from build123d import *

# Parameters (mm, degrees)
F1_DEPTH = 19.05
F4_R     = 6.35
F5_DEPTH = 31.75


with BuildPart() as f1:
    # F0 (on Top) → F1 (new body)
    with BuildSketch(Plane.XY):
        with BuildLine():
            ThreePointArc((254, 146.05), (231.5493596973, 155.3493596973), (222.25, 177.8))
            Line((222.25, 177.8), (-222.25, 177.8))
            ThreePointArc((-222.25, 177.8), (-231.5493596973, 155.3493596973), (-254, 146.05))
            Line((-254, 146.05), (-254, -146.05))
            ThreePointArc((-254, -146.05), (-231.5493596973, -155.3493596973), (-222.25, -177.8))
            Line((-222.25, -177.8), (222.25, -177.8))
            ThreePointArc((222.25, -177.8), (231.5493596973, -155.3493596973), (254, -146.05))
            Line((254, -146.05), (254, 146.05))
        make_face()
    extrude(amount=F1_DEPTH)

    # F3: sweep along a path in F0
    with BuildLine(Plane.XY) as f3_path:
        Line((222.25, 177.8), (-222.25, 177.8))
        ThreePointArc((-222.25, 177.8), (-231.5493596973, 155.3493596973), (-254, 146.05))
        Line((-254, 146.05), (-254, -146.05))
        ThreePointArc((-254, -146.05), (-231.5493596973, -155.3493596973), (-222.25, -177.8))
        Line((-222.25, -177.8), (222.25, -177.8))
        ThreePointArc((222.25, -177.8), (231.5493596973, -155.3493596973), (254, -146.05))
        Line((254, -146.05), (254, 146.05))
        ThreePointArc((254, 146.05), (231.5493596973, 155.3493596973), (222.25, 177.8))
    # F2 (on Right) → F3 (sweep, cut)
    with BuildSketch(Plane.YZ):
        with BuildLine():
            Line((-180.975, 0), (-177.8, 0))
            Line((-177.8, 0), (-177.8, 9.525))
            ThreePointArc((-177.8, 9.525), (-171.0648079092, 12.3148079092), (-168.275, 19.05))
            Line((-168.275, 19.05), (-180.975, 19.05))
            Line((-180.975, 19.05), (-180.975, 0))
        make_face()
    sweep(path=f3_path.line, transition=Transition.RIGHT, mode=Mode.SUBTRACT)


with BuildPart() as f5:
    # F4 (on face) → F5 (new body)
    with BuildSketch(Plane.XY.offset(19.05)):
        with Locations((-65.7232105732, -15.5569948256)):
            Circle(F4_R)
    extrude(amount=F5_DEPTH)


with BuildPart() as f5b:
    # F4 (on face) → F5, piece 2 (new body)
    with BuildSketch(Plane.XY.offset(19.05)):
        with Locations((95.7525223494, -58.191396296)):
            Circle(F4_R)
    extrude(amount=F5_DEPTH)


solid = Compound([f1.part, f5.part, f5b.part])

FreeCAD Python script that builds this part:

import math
import FreeCAD as App
import Part
import Sketcher
Q = App.Units.Quantity

doc = App.newDocument("Part")
body = doc.addObject("PartDesign::Body", "Body")

sketch1 = body.newObject("Sketcher::SketchObject", "Sketch")
sketch1.AttachmentSupport = (doc.getObject("XY_Plane"), [""])
sketch1.MapMode = "FlatFace"
sketch1.addGeometry([
    Part.ArcOfCircle(Part.Circle(App.Vector(254, 178, 0), App.Vector(0, 0, 1), 32), math.radians(180), math.radians(270)),
    Part.LineSegment(App.Vector(222, 178, 0), App.Vector(-222, 178, 0)),
    Part.ArcOfCircle(Part.Circle(App.Vector(-254, 178, 0), App.Vector(0, 0, 1), 32), math.radians(-90), math.radians(0)),
    Part.LineSegment(App.Vector(-254, 146, 0), App.Vector(-254, -146, 0)),
    Part.ArcOfCircle(Part.Circle(App.Vector(-254, -178, 0), App.Vector(0, 0, 1), 32), math.radians(0), math.radians(90)),
    Part.LineSegment(App.Vector(-222, -178, 0), App.Vector(222, -178, 0)),
    Part.ArcOfCircle(Part.Circle(App.Vector(254, -178, 0), App.Vector(0, 0, 1), 32), math.radians(90), math.radians(180)),
    Part.LineSegment(App.Vector(254, -146, 0), App.Vector(254, 146, 0)),
], False)
sketch1.addConstraint([
    Sketcher.Constraint("Coincident", 0, 1, 1, 1),
    Sketcher.Constraint("Coincident", 1, 2, 2, 2),
    Sketcher.Constraint("Coincident", 2, 1, 3, 1),
    Sketcher.Constraint("Coincident", 3, 2, 4, 2),
    Sketcher.Constraint("Coincident", 4, 1, 5, 1),
    Sketcher.Constraint("Coincident", 5, 2, 6, 2),
    Sketcher.Constraint("Coincident", 6, 1, 7, 1),
    Sketcher.Constraint("Coincident", 7, 2, 0, 2),
    Sketcher.Constraint("Horizontal", 1),
    Sketcher.Constraint("Vertical", 3),
    Sketcher.Constraint("Horizontal", 5),
    Sketcher.Constraint("Vertical", 7),
    Sketcher.Constraint("Equal", 0, 2),
    Sketcher.Constraint("Equal", 2, 4),
    Sketcher.Constraint("Equal", 4, 6),
    Sketcher.Constraint("Symmetric", 0, 3, 4, 3, -1, 1),
    Sketcher.Constraint("Symmetric", 2, 3, 6, 3, -1, 1),
    Sketcher.Constraint("Symmetric", 0, 3, 2, 3, -2),
    Sketcher.Constraint("Horizontal", 2, 3, 0, 1),
    Sketcher.Constraint("Horizontal", 6, 3, 4, 1),
    Sketcher.Constraint("Vertical", 4, 3, 2, 1),
    Sketcher.Constraint("Vertical", 0, 3, 6, 1),
    Sketcher.Constraint("Radius", 0, Q("1.25 in")),
    Sketcher.Constraint("DistanceX", 1, 2, 1, 1, Q("17.5 in")),
    Sketcher.Constraint("DistanceY", 3, 2, 3, 1, Q("11.5 in")),
])
pad1 = body.newObject("PartDesign::Pad", "Pad")
pad1.Profile = sketch1
pad1.Length = Q("0.75 in")

sketch2 = body.newObject("Sketcher::SketchObject", "Sketch001")
sketch2.AttachmentSupport = (doc.getObject("YZ_Plane"), [""])
sketch2.MapMode = "FlatFace"
sketch2.addGeometry([
    Part.LineSegment(App.Vector(-181, 0, 0), App.Vector(-177.8, 0, 0)),
    Part.LineSegment(App.Vector(-177.8, 0, 0), App.Vector(-177.8, 9.5, 0)),
    Part.ArcOfCircle(Part.Circle(App.Vector(-177.8, 19.1, 0), App.Vector(0, 0, 1), 9.5), math.radians(-90), math.radians(0)),
    Part.LineSegment(App.Vector(-168.3, 19.1, 0), App.Vector(-181, 19.1, 0)),
    Part.LineSegment(App.Vector(-181, 19.1, 0), App.Vector(-181, 0, 0)),
], False)
sketch2.addConstraint([
    Sketcher.Constraint("Coincident", 0, 2, 1, 1),
    Sketcher.Constraint("Coincident", 1, 2, 2, 1),
    Sketcher.Constraint("Coincident", 2, 2, 3, 1),
    Sketcher.Constraint("Coincident", 3, 2, 4, 1),
    Sketcher.Constraint("Coincident", 4, 2, 0, 1),
    Sketcher.Constraint("Horizontal", 0),
    Sketcher.Constraint("Vertical", 1),
    Sketcher.Constraint("Horizontal", 3),
    Sketcher.Constraint("Vertical", 4),
    Sketcher.Constraint("PointOnObject", 0, 2, -1),
    Sketcher.Constraint("Vertical", 2, 3, 0, 2),
    Sketcher.Constraint("DistanceX", 3, 2, 3, 1, Q("0.5 in")),
    Sketcher.Constraint("DistanceX", 2, 3, -1, 1, Q("7 in")),
    Sketcher.Constraint("Radius", 2, Q("0.375 in")),
    Sketcher.Constraint("DistanceY", 4, 2, 4, 1, Q("0.75 in")),
    Sketcher.Constraint("DistanceY", 1, 1, 1, 2, Q("0.375 in")),
])

sketch3 = body.newObject("Sketcher::SketchObject", "Sketch002")
sketch3.AttachmentSupport = (doc.getObject("XY_Plane"), [""])
sketch3.MapMode = "FlatFace"
sketch3.addGeometry([
    Part.LineSegment(App.Vector(222, 178, 0), App.Vector(-222, 178, 0)),
    Part.ArcOfCircle(Part.Circle(App.Vector(-254, 178, 0), App.Vector(0, 0, 1), 32), math.radians(-90), math.radians(0)),
    Part.LineSegment(App.Vector(-254, 146, 0), App.Vector(-254, -146, 0)),
    Part.ArcOfCircle(Part.Circle(App.Vector(-254, -178, 0), App.Vector(0, 0, 1), 32), math.radians(0), math.radians(90)),
    Part.LineSegment(App.Vector(-222, -178, 0), App.Vector(222, -178, 0)),
    Part.ArcOfCircle(Part.Circle(App.Vector(254, -178, 0), App.Vector(0, 0, 1), 32), math.radians(90), math.radians(180)),
    Part.LineSegment(App.Vector(254, -146, 0), App.Vector(254, 146, 0)),
    Part.ArcOfCircle(Part.Circle(App.Vector(254, 178, 0), App.Vector(0, 0, 1), 32), math.radians(180), math.radians(270)),
], False)
sketch3.addConstraint([
    Sketcher.Constraint("Coincident", 0, 2, 1, 2),
    Sketcher.Constraint("Coincident", 1, 1, 2, 1),
    Sketcher.Constraint("Coincident", 2, 2, 3, 2),
    Sketcher.Constraint("Coincident", 3, 1, 4, 1),
    Sketcher.Constraint("Coincident", 4, 2, 5, 2),
    Sketcher.Constraint("Coincident", 5, 1, 6, 1),
    Sketcher.Constraint("Coincident", 6, 2, 7, 2),
    Sketcher.Constraint("Coincident", 7, 1, 0, 1),
    Sketcher.Constraint("Horizontal", 0),
    Sketcher.Constraint("Vertical", 2),
    Sketcher.Constraint("Horizontal", 4),
    Sketcher.Constraint("Vertical", 6),
    Sketcher.Constraint("Equal", 1, 3),
    Sketcher.Constraint("Equal", 3, 5),
    Sketcher.Constraint("Equal", 5, 7),
    Sketcher.Constraint("Symmetric", 1, 3, 5, 3, -1, 1),
    Sketcher.Constraint("Symmetric", 3, 3, 7, 3, -1, 1),
    Sketcher.Constraint("Symmetric", 3, 3, 5, 3, -2),
    Sketcher.Constraint("Horizontal", 7, 3, 0, 2),
    Sketcher.Constraint("Horizontal", 5, 3, 3, 1),
    Sketcher.Constraint("Vertical", 3, 3, 1, 1),
    Sketcher.Constraint("Vertical", 7, 3, 5, 1),
    Sketcher.Constraint("Radius", 1, Q("1.25 in")),
    Sketcher.Constraint("DistanceX", 0, 2, 0, 1, Q("17.5 in")),
    Sketcher.Constraint("DistanceY", 2, 2, 2, 1, Q("11.5 in")),
])
doc.recompute()

subtractivepipe = body.newObject("PartDesign::SubtractivePipe", "SubtractivePipe")
subtractivepipe.Profile = sketch2
subtractivepipe.Spine = (sketch3, ["Edge1", "Edge2", "Edge3", "Edge4", "Edge5", "Edge6", "Edge7", "Edge8"])
subtractivepipe.Transition = "Right corner"
body2 = doc.addObject("PartDesign::Body", "Body001")

sketch4 = body2.newObject("Sketcher::SketchObject", "Sketch003")
sketch4.AttachmentSupport = (doc.getObject("XY_Plane001"), [""])
sketch4.MapMode = "FlatFace"
sketch4.AttachmentOffset = App.Placement(App.Vector(0, 0, 0.75 * 25.4), App.Rotation())
sketch4.addGeometry(Part.Circle(App.Vector(-66, -16, 0), App.Vector(0, 0, 1), 6), False)
sketch4.addConstraint([
    Sketcher.Constraint("Diameter", 0, Q("0.5 in")),
    Sketcher.Constraint("DistanceX", 0, 3, -1, 1, Q("65.723211 mm")),
    Sketcher.Constraint("DistanceY", 0, 3, -1, 1, Q("15.556995 mm")),
])
pad2 = body2.newObject("PartDesign::Pad", "Pad001")
pad2.Profile = sketch4
pad2.Length = Q("1.25 in")
body3 = doc.addObject("PartDesign::Body", "Body002")

sketch5 = body3.newObject("Sketcher::SketchObject", "Sketch004")
sketch5.AttachmentSupport = (doc.getObject("XY_Plane002"), [""])
sketch5.MapMode = "FlatFace"
sketch5.AttachmentOffset = App.Placement(App.Vector(0, 0, 0.75 * 25.4), App.Rotation())
sketch5.addGeometry(Part.Circle(App.Vector(96, -58, 0), App.Vector(0, 0, 1), 6), False)
sketch5.addConstraint([
    Sketcher.Constraint("Diameter", 0, Q("0.5 in")),
    Sketcher.Constraint("DistanceY", 0, 3, -1, 1, Q("2.2909999 in")),
    Sketcher.Constraint("DistanceX", -1, 1, 0, 3, Q("95.752522 mm")),
])
pad3 = body3.newObject("PartDesign::Pad", "Pad002")
pad3.Profile = sketch5
pad3.Length = Q("1.25 in")

doc.recompute()
